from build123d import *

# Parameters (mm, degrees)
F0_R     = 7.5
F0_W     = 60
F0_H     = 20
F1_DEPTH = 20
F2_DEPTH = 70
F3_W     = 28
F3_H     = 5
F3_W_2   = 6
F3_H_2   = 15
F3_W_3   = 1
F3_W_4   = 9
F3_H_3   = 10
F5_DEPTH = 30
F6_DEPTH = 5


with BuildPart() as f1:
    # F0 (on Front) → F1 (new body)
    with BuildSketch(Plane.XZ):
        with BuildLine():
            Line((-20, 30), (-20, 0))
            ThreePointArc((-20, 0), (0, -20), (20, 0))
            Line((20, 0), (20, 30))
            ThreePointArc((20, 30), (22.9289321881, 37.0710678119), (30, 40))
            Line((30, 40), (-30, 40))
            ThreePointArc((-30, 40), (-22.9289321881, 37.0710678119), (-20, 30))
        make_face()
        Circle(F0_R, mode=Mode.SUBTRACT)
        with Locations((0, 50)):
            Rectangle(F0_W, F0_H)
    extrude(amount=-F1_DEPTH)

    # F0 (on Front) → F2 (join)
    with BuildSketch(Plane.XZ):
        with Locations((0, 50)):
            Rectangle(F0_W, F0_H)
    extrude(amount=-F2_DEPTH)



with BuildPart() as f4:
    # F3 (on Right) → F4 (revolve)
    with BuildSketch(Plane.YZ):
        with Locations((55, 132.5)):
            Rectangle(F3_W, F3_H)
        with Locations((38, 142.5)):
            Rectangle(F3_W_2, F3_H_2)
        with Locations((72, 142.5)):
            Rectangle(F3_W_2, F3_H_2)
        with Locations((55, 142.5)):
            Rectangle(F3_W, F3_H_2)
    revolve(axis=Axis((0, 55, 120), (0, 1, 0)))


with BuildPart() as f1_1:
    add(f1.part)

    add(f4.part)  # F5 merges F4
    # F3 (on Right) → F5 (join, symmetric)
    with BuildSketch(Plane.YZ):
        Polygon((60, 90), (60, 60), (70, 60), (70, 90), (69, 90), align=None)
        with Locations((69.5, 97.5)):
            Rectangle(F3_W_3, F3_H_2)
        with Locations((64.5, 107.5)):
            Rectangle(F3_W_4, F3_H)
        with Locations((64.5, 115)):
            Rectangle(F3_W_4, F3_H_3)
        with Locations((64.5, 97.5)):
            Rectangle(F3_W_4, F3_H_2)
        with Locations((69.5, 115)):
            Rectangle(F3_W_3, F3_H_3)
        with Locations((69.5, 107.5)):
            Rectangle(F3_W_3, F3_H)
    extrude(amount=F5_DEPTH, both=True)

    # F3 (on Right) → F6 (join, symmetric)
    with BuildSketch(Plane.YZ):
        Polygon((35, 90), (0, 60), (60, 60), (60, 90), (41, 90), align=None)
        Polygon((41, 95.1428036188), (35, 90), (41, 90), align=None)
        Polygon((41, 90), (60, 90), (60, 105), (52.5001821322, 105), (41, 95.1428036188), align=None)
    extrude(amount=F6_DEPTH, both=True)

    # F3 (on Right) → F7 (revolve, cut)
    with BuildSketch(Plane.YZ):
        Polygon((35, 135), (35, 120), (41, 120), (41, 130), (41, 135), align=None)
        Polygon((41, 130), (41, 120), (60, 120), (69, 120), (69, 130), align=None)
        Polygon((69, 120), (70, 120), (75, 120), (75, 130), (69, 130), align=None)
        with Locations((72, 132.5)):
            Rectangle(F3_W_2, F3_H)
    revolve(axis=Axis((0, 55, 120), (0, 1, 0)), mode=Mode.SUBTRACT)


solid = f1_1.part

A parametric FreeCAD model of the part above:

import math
import FreeCAD as App
import Part
import Sketcher
Q = App.Units.Quantity

doc = App.newDocument("Part")
body = doc.addObject("PartDesign::Body", "Body")

# Sketch on XZ plane
sketch1 = body.newObject("Sketcher::SketchObject", "Sketch")
sketch1.AttachmentSupport = (doc.getObject("XZ_Plane"), [""])
sketch1.MapMode = "FlatFace"
sketch1.addGeometry(Part.LineSegment(App.Vector(-20, 30, 0), App.Vector(-20, 0, 0)), False)
sketch1.addGeometry(Part.ArcOfCircle(Part.Circle(App.Vector(0, 0, 0), App.Vector(0, 0, 1), 20), math.radians(180), math.radians(360)), False)
sketch1.addGeometry(Part.LineSegment(App.Vector(20, 0, 0), App.Vector(20, 30, 0)), False)
sketch1.addGeometry(Part.ArcOfCircle(Part.Circle(App.Vector(30, 30, 0), App.Vector(0, 0, 1), 10), math.radians(90), math.radians(180)), False)
sketch1.addGeometry(Part.LineSegment(App.Vector(30, 40, 0), App.Vector(30, 60, 0)), False)
sketch1.addGeometry(Part.LineSegment(App.Vector(30, 60, 0), App.Vector(-30, 60, 0)), False)
sketch1.addGeometry(Part.LineSegment(App.Vector(-30, 60, 0), App.Vector(-30, 40, 0)), False)
sketch1.addGeometry(Part.ArcOfCircle(Part.Circle(App.Vector(-30, 30, 0), App.Vector(0, 0, 1), 10), math.radians(0), math.radians(90)), False)
sketch1.addGeometry(Part.Circle(App.Vector(0, 0, 0), App.Vector(0, 0, 1), 7.5), False)
sketch1.addConstraint(Sketcher.Constraint("Tangent", 0, 2, 1, 1))
sketch1.addConstraint(Sketcher.Constraint("Tangent", 1, 2, 2, 1))
sketch1.addConstraint(Sketcher.Constraint("Tangent", 2, 2, 3, 2))
sketch1.addConstraint(Sketcher.Constraint("Coincident", 3, 1, 4, 1))
sketch1.addConstraint(Sketcher.Constraint("Coincident", 4, 2, 5, 1))
sketch1.addConstraint(Sketcher.Constraint("Coincident", 5, 2, 6, 1))
sketch1.addConstraint(Sketcher.Constraint("Coincident", 6, 2, 7, 2))
sketch1.addConstraint(Sketcher.Constraint("Tangent", 7, 1, 0, 1))
sketch1.addConstraint(Sketcher.Constraint("Vertical", 0))
sketch1.addConstraint(Sketcher.Constraint("Vertical", 2))
sketch1.addConstraint(Sketcher.Constraint("Vertical", 4))
sketch1.addConstraint(Sketcher.Constraint("Horizontal", 5))
sketch1.addConstraint(Sketcher.Constraint("Vertical", 6))
sketch1.addConstraint(Sketcher.Constraint("Coincident", 1, 3, -1, 1))
sketch1.addConstraint(Sketcher.Constraint("Coincident", 8, 3, -1, 1))
sketch1.addConstraint(Sketcher.Constraint("Equal", 3, 7))
sketch1.addConstraint(Sketcher.Constraint("Symmetric", 3, 1, 6, 2, -2))
sketch1.addConstraint(Sketcher.Constraint("Vertical", 7, 3, 5, 2))
sketch1.addConstraint(Sketcher.Constraint("Diameter", 8, Q("15 mm")))
sketch1.addConstraint(Sketcher.Constraint("Radius", 1, Q("20 mm")))
sketch1.addConstraint(Sketcher.Constraint("Radius", 3, Q("10 mm")))
sketch1.addConstraint(Sketcher.Constraint("DistanceY", 0, 2, 0, 1, Q("30 mm")))
sketch1.addConstraint(Sketcher.Constraint("DistanceY", 4, 1, 4, 2, Q("20 mm")))
pad1 = body.newObject("PartDesign::Pad", "Pad")
pad1.Profile = sketch1
pad1.Length = 20
pad1.Reversed = True

# Sketch on XZ plane
sketch2 = body.newObject("Sketcher::SketchObject", "Sketch001")
sketch2.AttachmentSupport = (doc.getObject("XZ_Plane"), [""])
sketch2.MapMode = "FlatFace"
sketch2.addGeometry(Part.LineSegment(App.Vector(-30, 60, 0), App.Vector(-30, 40, 0)), False)
sketch2.addGeometry(Part.LineSegment(App.Vector(-30, 40, 0), App.Vector(30, 40, 0)), False)
sketch2.addGeometry(Part.LineSegment(App.Vector(30, 40, 0), App.Vector(30, 60, 0)), False)
sketch2.addGeometry(Part.LineSegment(App.Vector(30, 60, 0), App.Vector(-30, 60, 0)), False)
sketch2.addConstraint(Sketcher.Constraint("Coincident", 0, 2, 1, 1))
sketch2.addConstraint(Sketcher.Constraint("Coincident", 1, 2, 2, 1))
sketch2.addConstraint(Sketcher.Constraint("Coincident", 2, 2, 3, 1))
sketch2.addConstraint(Sketcher.Constraint("Coincident", 3, 2, 0, 1))
sketch2.addConstraint(Sketcher.Constraint("Vertical", 0))
sketch2.addConstraint(Sketcher.Constraint("Horizontal", 1))
sketch2.addConstraint(Sketcher.Constraint("Vertical", 2))
sketch2.addConstraint(Sketcher.Constraint("Horizontal", 3))
sketch2.addConstraint(Sketcher.Constraint("DistanceX", 1, 1, 1, 2, Q("60 mm")))
sketch2.addConstraint(Sketcher.Constraint("DistanceY", 0, 2, 0, 1, Q("20 mm")))
sketch2.addConstraint(Sketcher.Constraint("DistanceX", 0, 2, -1, 1, Q("30 mm")))
sketch2.addConstraint(Sketcher.Constraint("DistanceY", -1, 1, 0, 2, Q("40 mm")))
pad2 = body.newObject("PartDesign::Pad", "Pad001")
pad2.Profile = sketch2
pad2.Length = 70
pad2.Reversed = True
body2 = doc.addObject("PartDesign::Body", "Body001")

# Sketch on YZ plane
sketch3 = body2.newObject("Sketcher::SketchObject", "Sketch002")
sketch3.AttachmentSupport = (doc.getObject("YZ_Plane001"), [""])
sketch3.MapMode = "FlatFace"
sketch3.addGeometry(Part.LineSegment(App.Vector(41, 135, 0), App.Vector(41, 130, 0)), False)
sketch3.addGeometry(Part.LineSegment(App.Vector(41, 130, 0), App.Vector(69, 130, 0)), False)
sketch3.addGeometry(Part.LineSegment(App.Vector(69, 130, 0), App.Vector(69, 135, 0)), False)
sketch3.addGeometry(Part.LineSegment(App.Vector(69, 135, 0), App.Vector(75, 135, 0)), False)
sketch3.addGeometry(Part.LineSegment(App.Vector(75, 135, 0), App.Vector(75, 150, 0)), False)
sketch3.addGeometry(Part.LineSegment(App.Vector(75, 150, 0), App.Vector(35, 150, 0)), False)
sketch3.addGeometry(Part.LineSegment(App.Vector(35, 150, 0), App.Vector(35, 135, 0)), False)
sketch3.addGeometry(Part.LineSegment(App.Vector(35, 135, 0), App.Vector(41, 135, 0)), False)
sketch3.addGeometry(Part.LineSegment(App.Vector(35, 120, 0), App.Vector(75, 120, 0)), True)  # axis
sketch3.addConstraint(Sketcher.Constraint("Coincident", 0, 2, 1, 1))
sketch3.addConstraint(Sketcher.Constraint("Coincident", 1, 2, 2, 1))
sketch3.addConstraint(Sketcher.Constraint("Coincident", 2, 2, 3, 1))
sketch3.addConstraint(Sketcher.Constraint("Coincident", 3, 2, 4, 1))
sketch3.addConstraint(Sketcher.Constraint("Coincident", 4, 2, 5, 1))
sketch3.addConstraint(Sketcher.Constraint("Coincident", 5, 2, 6, 1))
sketch3.addConstraint(Sketcher.Constraint("Coincident", 6, 2, 7, 1))
sketch3.addConstraint(Sketcher.Constraint("Coincident", 7, 2, 0, 1))
sketch3.addConstraint(Sketcher.Constraint("Vertical", 0))
sketch3.addConstraint(Sketcher.Constraint("Horizontal", 1))
sketch3.addConstraint(Sketcher.Constraint("Vertical", 2))
sketch3.addConstraint(Sketcher.Constraint("Horizontal", 3))
sketch3.addConstraint(Sketcher.Constraint("Vertical", 4))
sketch3.addConstraint(Sketcher.Constraint("Horizontal", 5))
sketch3.addConstraint(Sketcher.Constraint("Vertical", 6))
sketch3.addConstraint(Sketcher.Constraint("Horizontal", 7))
sketch3.addConstraint(Sketcher.Constraint("Horizontal", 8))
sketch3.addConstraint(Sketcher.Constraint("Horizontal", 3, 2, 6, 2))
sketch3.addConstraint(Sketcher.Constraint("Vertical", 6, 2, 8, 1))
sketch3.addConstraint(Sketcher.Constraint("Vertical", 4, 2, 8, 2))
sketch3.addConstraint(Sketcher.Constraint("Equal", 3, 7))
sketch3.addConstraint(Sketcher.Constraint("DistanceX", 1, 1, 1, 2, Q("28 mm")))
sketch3.addConstraint(Sketcher.Constraint("DistanceX", 3, 1, 3, 2, Q("6 mm")))
sketch3.addConstraint(Sketcher.Constraint("DistanceY", 0, 2, 0, 1, Q("5 mm")))
sketch3.addConstraint(Sketcher.Constraint("DistanceY", 4, 1, 4, 2, Q("15 mm")))
sketch3.addConstraint(Sketcher.Constraint("DistanceX", -1, 1, 0, 2, Q("41 mm")))
sketch3.addConstraint(Sketcher.Constraint("DistanceY", -1, 1, 0, 2, Q("130 mm")))
sketch3.addConstraint(Sketcher.Constraint("DistanceY", -1, 1, 8, 1, Q("120 mm")))
revolution = body2.newObject("PartDesign::Revolution", "Revolution")
revolution.Profile = sketch3
revolution.ReferenceAxis = (sketch3, ["Axis0"])
revolution.Angle = 360
body.AllowCompound = True
doc.recompute()

boolean = body.newObject("PartDesign::Boolean", "Boolean")
boolean.Type = "Fuse"
boolean.addObjects([body2])

# Sketch on YZ plane
sketch4 = body.newObject("Sketcher::SketchObject", "Sketch003")
sketch4.AttachmentSupport = (doc.getObject("YZ_Plane"), [""])
sketch4.MapMode = "FlatFace"
sketch4.addGeometry(Part.LineSegment(App.Vector(60, 60, 0), App.Vector(70, 60, 0)), False)
sketch4.addGeometry(Part.LineSegment(App.Vector(70, 60, 0), App.Vector(70, 120, 0)), False)
sketch4.addGeometry(Part.LineSegment(App.Vector(70, 120, 0), App.Vector(60, 120, 0)), False)
sketch4.addGeometry(Part.LineSegment(App.Vector(60, 120, 0), App.Vector(60, 60, 0)), False)
sketch4.addConstraint(Sketcher.Constraint("Coincident", 0, 2, 1, 1))
sketch4.addConstraint(Sketcher.Constraint("Coincident", 1, 2, 2, 1))
sketch4.addConstraint(Sketcher.Constraint("Coincident", 2, 2, 3, 1))
sketch4.addConstraint(Sketcher.Constraint("Coincident", 3, 2, 0, 1))
sketch4.addConstraint(Sketcher.Constraint("Horizontal", 0))
sketch4.addConstraint(Sketcher.Constraint("Vertical", 1))
sketch4.addConstraint(Sketcher.Constraint("Horizontal", 2))
sketch4.addConstraint(Sketcher.Constraint("Vertical", 3))
sketch4.addConstraint(Sketcher.Constraint("DistanceX", 0, 1, 0, 2, Q("10 mm")))
sketch4.addConstraint(Sketcher.Constraint("DistanceY", 1, 1, 1, 2, Q("60 mm")))
sketch4.addConstraint(Sketcher.Constraint("DistanceX", -1, 1, 0, 2, Q("70 mm")))
sketch4.addConstraint(Sketcher.Constraint("DistanceY", -1, 1, 0, 2, Q("60 mm")))
pad3 = body.newObject("PartDesign::Pad", "Pad002")
pad3.Profile = sketch4
pad3.Length = 60
pad3.Midplane = True

# Sketch on YZ plane
sketch5 = body.newObject("Sketcher::SketchObject", "Sketch004")
sketch5.AttachmentSupport = (doc.getObject("YZ_Plane"), [""])
sketch5.MapMode = "FlatFace"
sketch5.addGeometry(Part.LineSegment(App.Vector(35, 90, 0), App.Vector(0, 60, 0)), False)
sketch5.addGeometry(Part.LineSegment(App.Vector(0, 60, 0), App.Vector(60, 60, 0)), False)
sketch5.addGeometry(Part.LineSegment(App.Vector(60, 60, 0), App.Vector(60, 105, 0)), False)
sketch5.addGeometry(Part.LineSegment(App.Vector(60, 105, 0), App.Vector(52.500182, 105, 0)), False)
sketch5.addGeometry(Part.LineSegment(App.Vector(52.500182, 105, 0), App.Vector(41, 95.142804, 0)), False)
sketch5.addGeometry(Part.LineSegment(App.Vector(41, 95.142804, 0), App.Vector(35, 90, 0)), False)
sketch5.addConstraint(Sketcher.Constraint("Coincident", 0, 2, 1, 1))
sketch5.addConstraint(Sketcher.Constraint("Coincident", 1, 2, 2, 1))
sketch5.addConstraint(Sketcher.Constraint("Coincident", 2, 2, 3, 1))
sketch5.addConstraint(Sketcher.Constraint("Coincident", 3, 2, 4, 1))
sketch5.addConstraint(Sketcher.Constraint("Coincident", 4, 2, 5, 1))
sketch5.addConstraint(Sketcher.Constraint("Coincident", 5, 2, 0, 1))
sketch5.addConstraint(Sketcher.Constraint("Horizontal", 1))
sketch5.addConstraint(Sketcher.Constraint("Vertical", 2))
sketch5.addConstraint(Sketcher.Constraint("Horizontal", 3))
sketch5.addConstraint(Sketcher.Constraint("PointOnObject", 0, 2, -2))
sketch5.addConstraint(Sketcher.Constraint("Parallel", 4, 5))
sketch5.addConstraint(Sketcher.Constraint("DistanceX", 1, 1, 1, 2, Q("60 mm")))
sketch5.addConstraint(Sketcher.Constraint("DistanceY", 2, 1, 2, 2, Q("45 mm")))
sketch5.addConstraint(Sketcher.Constraint("DistanceY", -1, 1, 0, 2, Q("60 mm")))
sketch5.addConstraint(Sketcher.Constraint("DistanceX", -1, 1, 4, 2, Q("41 mm")))
sketch5.addConstraint(Sketcher.Constraint("DistanceX", -1, 1, 5, 2, Q("35 mm")))
sketch5.addConstraint(Sketcher.Constraint("DistanceY", -1, 1, 5, 2, Q("90 mm")))
sketch5.addConstraint(Sketcher.Constraint("Distance", 5, Q("7.902432 mm")))
pad4 = body.newObject("PartDesign::Pad", "Pad003")
pad4.Profile = sketch5
pad4.Length = 10
pad4.Midplane = True

# Sketch on YZ plane
sketch6 = body.newObject("Sketcher::SketchObject", "Sketch005")
sketch6.AttachmentSupport = (doc.getObject("YZ_Plane"), [""])
sketch6.MapMode = "FlatFace"
sketch6.addGeometry(Part.LineSegment(App.Vector(35, 135, 0), App.Vector(35, 120, 0)), False)
sketch6.addGeometry(Part.LineSegment(App.Vector(35, 120, 0), App.Vector(75, 120, 0)), False)
sketch6.addGeometry(Part.LineSegment(App.Vector(75, 120, 0), App.Vector(75, 135, 0)), False)
sketch6.addGeometry(Part.LineSegment(App.Vector(75, 135, 0), App.Vector(69, 135, 0)), False)
sketch6.addGeometry(Part.LineSegment(App.Vector(69, 135, 0), App.Vector(69, 130, 0)), False)
sketch6.addGeometry(Part.LineSegment(App.Vector(69, 130, 0), App.Vector(41, 130, 0)), False)
sketch6.addGeometry(Part.LineSegment(App.Vector(41, 130, 0), App.Vector(41, 135, 0)), False)
sketch6.addGeometry(Part.LineSegment(App.Vector(41, 135, 0), App.Vector(35, 135, 0)), False)
sketch6.addGeometry(Part.LineSegment(App.Vector(35, 120, 0), App.Vector(75, 120, 0)), True)  # axis
sketch6.addConstraint(Sketcher.Constraint("Coincident", 0, 2, 1, 1))
sketch6.addConstraint(Sketcher.Constraint("Coincident", 1, 2, 2, 1))
sketch6.addConstraint(Sketcher.Constraint("Coincident", 2, 2, 3, 1))
sketch6.addConstraint(Sketcher.Constraint("Coincident", 3, 2, 4, 1))
sketch6.addConstraint(Sketcher.Constraint("Coincident", 4, 2, 5, 1))
sketch6.addConstraint(Sketcher.Constraint("Coincident", 5, 2, 6, 1))
sketch6.addConstraint(Sketcher.Constraint("Coincident", 6, 2, 7, 1))
sketch6.addConstraint(Sketcher.Constraint("Coincident", 7, 2, 0, 1))
sketch6.addConstraint(Sketcher.Constraint("Vertical", 0))
sketch6.addConstraint(Sketcher.Constraint("Horizontal", 1))
sketch6.addConstraint(Sketcher.Constraint("Vertical", 2))
sketch6.addConstraint(Sketcher.Constraint("Horizontal", 3))
sketch6.addConstraint(Sketcher.Constraint("Vertical", 4))
sketch6.addConstraint(Sketcher.Constraint("Horizontal", 5))
sketch6.addConstraint(Sketcher.Constraint("Vertical", 6))
sketch6.addConstraint(Sketcher.Constraint("Horizontal", 7))
sketch6.addConstraint(Sketcher.Constraint("Horizontal", 8))
sketch6.addConstraint(Sketcher.Constraint("Coincident", 8, 1, 0, 2))
sketch6.addConstraint(Sketcher.Constraint("Horizontal", 3, 2, 6, 2))
sketch6.addConstraint(Sketcher.Constraint("Vertical", 2, 2, 8, 2))
sketch6.addConstraint(Sketcher.Constraint("Equal", 3, 7))
sketch6.addConstraint(Sketcher.Constraint("DistanceX", 1, 1, 1, 2, Q("40 mm")))
sketch6.addConstraint(Sketcher.Constraint("DistanceX", 3, 2, 3, 1, Q("6 mm")))
sketch6.addConstraint(Sketcher.Constraint("DistanceY", 0, 2, 0, 1, Q("15 mm")))
sketch6.addConstraint(Sketcher.Constraint("DistanceY", 4, 2, 4, 1, Q("5 mm")))
sketch6.addConstraint(Sketcher.Constraint("DistanceX", -1, 1, 0, 2, Q("35 mm")))
sketch6.addConstraint(Sketcher.Constraint("DistanceY", -1, 1, 0, 2, Q("120 mm")))
groove = body.newObject("PartDesign::Groove", "Groove")
groove.Profile = sketch6
groove.ReferenceAxis = (sketch6, ["Axis0"])
groove.Angle = 360

doc.recompute()
